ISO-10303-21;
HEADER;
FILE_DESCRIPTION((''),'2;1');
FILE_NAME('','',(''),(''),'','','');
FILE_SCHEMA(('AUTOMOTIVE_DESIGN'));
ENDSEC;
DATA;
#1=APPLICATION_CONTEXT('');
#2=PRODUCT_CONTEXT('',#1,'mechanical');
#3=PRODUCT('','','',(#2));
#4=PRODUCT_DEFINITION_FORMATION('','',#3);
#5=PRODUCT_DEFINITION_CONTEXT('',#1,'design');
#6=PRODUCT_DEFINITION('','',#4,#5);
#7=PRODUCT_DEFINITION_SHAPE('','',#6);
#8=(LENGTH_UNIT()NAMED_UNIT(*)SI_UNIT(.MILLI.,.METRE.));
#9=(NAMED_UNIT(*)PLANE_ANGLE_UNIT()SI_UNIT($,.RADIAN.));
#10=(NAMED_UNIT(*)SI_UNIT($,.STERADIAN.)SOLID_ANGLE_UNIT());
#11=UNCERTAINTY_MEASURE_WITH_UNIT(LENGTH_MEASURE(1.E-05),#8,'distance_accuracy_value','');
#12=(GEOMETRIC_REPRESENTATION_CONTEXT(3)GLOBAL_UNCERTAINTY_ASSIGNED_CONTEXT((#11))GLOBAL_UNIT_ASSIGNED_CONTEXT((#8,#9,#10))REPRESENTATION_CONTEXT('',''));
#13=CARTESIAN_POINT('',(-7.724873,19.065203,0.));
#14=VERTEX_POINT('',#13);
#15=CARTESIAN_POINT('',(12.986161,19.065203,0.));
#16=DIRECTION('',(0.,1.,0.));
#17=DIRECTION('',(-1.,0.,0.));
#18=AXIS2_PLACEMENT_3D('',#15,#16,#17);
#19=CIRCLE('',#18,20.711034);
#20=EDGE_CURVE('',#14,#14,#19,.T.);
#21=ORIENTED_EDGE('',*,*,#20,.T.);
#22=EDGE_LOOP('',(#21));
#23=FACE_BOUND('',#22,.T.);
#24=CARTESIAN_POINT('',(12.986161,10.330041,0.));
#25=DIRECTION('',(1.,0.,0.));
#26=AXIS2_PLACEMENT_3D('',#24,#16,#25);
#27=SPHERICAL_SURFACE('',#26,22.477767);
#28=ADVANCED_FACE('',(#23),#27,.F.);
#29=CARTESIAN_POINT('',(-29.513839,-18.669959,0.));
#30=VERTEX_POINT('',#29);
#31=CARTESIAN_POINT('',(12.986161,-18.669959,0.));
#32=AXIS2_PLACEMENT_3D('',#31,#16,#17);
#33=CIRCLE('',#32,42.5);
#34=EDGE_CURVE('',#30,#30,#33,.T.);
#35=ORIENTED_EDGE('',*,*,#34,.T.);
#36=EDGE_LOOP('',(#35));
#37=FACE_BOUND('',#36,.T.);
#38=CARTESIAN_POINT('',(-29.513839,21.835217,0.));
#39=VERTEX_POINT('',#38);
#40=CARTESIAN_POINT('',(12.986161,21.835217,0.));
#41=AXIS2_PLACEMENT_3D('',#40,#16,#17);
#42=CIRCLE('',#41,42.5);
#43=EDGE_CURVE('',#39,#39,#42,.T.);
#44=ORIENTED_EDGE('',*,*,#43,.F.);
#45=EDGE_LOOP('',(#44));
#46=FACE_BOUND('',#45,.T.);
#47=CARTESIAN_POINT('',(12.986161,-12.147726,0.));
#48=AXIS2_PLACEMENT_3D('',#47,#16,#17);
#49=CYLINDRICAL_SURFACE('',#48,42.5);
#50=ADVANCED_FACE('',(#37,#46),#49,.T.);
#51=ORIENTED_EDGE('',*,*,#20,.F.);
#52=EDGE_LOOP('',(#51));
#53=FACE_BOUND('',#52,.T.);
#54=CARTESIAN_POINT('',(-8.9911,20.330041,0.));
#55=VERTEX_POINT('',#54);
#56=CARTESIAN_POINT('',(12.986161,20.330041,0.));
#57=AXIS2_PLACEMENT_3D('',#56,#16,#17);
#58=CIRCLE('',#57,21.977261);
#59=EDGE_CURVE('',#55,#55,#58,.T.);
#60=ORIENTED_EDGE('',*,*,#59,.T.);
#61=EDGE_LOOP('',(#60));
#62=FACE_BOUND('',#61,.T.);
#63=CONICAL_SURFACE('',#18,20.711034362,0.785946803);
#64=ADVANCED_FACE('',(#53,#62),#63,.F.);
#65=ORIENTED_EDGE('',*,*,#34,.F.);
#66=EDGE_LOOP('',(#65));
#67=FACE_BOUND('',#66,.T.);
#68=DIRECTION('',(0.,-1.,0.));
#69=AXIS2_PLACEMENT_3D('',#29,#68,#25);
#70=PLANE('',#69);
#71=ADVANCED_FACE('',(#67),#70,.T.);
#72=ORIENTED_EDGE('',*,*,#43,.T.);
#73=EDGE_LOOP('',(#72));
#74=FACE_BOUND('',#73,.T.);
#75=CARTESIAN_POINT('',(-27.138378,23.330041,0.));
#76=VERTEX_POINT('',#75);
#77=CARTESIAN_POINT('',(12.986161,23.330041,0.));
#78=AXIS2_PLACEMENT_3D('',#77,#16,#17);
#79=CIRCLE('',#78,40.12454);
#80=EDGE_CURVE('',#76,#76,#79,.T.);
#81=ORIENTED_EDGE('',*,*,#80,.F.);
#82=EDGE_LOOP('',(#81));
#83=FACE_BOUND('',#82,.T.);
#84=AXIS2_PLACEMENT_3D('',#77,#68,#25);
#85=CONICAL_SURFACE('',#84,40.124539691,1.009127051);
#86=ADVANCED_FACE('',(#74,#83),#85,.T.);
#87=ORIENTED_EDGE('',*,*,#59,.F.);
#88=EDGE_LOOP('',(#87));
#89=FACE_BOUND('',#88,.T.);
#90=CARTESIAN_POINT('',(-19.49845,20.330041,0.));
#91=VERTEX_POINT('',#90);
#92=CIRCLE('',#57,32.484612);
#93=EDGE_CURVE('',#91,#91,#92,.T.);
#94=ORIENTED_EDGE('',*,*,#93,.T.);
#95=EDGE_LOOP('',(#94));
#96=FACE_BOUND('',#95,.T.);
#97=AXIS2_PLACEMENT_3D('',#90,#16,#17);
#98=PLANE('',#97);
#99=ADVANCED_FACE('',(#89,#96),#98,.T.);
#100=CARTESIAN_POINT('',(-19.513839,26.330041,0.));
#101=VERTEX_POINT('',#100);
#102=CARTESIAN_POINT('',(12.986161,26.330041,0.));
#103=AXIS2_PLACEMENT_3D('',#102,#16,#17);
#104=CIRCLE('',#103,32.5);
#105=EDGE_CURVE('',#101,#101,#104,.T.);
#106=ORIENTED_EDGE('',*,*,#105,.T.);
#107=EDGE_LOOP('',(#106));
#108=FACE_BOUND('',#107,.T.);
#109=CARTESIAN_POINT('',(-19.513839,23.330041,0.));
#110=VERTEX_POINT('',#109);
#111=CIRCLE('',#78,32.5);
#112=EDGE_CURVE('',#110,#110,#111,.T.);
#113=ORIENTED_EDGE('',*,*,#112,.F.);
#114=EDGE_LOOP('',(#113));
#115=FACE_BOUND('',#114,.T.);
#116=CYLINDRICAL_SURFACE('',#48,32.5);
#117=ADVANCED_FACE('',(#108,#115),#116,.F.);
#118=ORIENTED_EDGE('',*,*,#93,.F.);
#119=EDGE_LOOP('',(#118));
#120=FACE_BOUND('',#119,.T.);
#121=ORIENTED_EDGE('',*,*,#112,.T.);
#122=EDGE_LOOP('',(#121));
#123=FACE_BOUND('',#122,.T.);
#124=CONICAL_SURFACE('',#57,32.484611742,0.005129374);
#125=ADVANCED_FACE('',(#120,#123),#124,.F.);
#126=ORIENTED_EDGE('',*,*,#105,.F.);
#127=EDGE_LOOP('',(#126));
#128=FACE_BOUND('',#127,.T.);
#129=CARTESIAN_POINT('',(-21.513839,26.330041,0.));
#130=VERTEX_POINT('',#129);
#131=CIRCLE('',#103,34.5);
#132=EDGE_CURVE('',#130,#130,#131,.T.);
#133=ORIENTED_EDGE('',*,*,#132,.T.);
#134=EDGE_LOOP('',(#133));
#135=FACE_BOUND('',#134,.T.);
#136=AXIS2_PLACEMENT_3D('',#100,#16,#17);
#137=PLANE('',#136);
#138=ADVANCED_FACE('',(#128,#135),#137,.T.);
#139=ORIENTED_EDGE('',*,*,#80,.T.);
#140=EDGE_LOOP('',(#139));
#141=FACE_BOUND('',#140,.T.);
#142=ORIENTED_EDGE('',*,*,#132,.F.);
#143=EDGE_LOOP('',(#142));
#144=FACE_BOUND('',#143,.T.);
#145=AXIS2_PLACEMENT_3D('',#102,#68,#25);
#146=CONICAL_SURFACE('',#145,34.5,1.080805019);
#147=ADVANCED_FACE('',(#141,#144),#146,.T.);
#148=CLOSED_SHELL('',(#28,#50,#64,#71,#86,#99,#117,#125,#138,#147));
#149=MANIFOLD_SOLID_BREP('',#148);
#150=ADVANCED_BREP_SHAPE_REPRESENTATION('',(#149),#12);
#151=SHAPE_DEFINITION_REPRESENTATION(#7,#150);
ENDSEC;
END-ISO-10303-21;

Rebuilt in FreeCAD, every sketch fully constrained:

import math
import FreeCAD as App
import Part
import Sketcher
Q = App.Units.Quantity

doc = App.newDocument("Part")
body = doc.addObject("PartDesign::Body", "Body")

sketch1 = body.newObject("Sketcher::SketchObject", "Sketch")
sketch1.AttachmentSupport = (doc.getObject("XY_Plane"), [""])
sketch1.MapMode = "FlatFace"
sketch1.addGeometry([
    Part.LineSegment(App.Vector(-19.5, 23.3, 0), App.Vector(-19.5, 26.3, 0)),
    Part.LineSegment(App.Vector(-19.5, 26.3, 0), App.Vector(-21.5, 26.3, 0)),
    Part.LineSegment(App.Vector(-21.5, 26.3, 0), App.Vector(-27.1, 23.3, 0)),
    Part.LineSegment(App.Vector(-27.1, 23.3, 0), App.Vector(-29.5, 21.8, 0)),
    Part.LineSegment(App.Vector(-29.5, 21.8, 0), App.Vector(-29.5, -18.7, 0)),
    Part.LineSegment(App.Vector(-29.5, -18.7, 0), App.Vector(13, -18.7, 0)),
    Part.LineSegment(App.Vector(13, -18.7, 0), App.Vector(13, -12.1, 0)),
    Part.ArcOfCircle(Part.Circle(App.Vector(13, 10.3, 0), App.Vector(0, 0, 1), 22.5), math.radians(157), math.radians(270)),
    Part.LineSegment(App.Vector(-7.7, 19.1, 0), App.Vector(-9, 20.3, 0)),
    Part.LineSegment(App.Vector(-9, 20.3, 0), App.Vector(-19.5, 20.3, 0)),
    Part.LineSegment(App.Vector(-19.5, 20.3, 0), App.Vector(-19.5, 23.3, 0)),
], False)
sketch1.addGeometry(Part.LineSegment(App.Vector(13, 26.3, 0), App.Vector(13, -18.7, 0)), True)
sketch1.addConstraint([
    Sketcher.Constraint("Coincident", 0, 2, 1, 1),
    Sketcher.Constraint("Coincident", 1, 2, 2, 1),
    Sketcher.Constraint("Coincident", 2, 2, 3, 1),
    Sketcher.Constraint("Coincident", 3, 2, 4, 1),
    Sketcher.Constraint("Coincident", 4, 2, 5, 1),
    Sketcher.Constraint("Coincident", 5, 2, 6, 1),
    Sketcher.Constraint("Coincident", 6, 2, 7, 2),
    Sketcher.Constraint("Coincident", 7, 1, 8, 1),
    Sketcher.Constraint("Coincident", 8, 2, 9, 1),
    Sketcher.Constraint("Coincident", 9, 2, 10, 1),
    Sketcher.Constraint("Coincident", 10, 2, 0, 1),
    Sketcher.Constraint("Vertical", 0),
    Sketcher.Constraint("Horizontal", 1),
    Sketcher.Constraint("Vertical", 4),
    Sketcher.Constraint("Horizontal", 5),
    Sketcher.Constraint("Vertical", 6),
    Sketcher.Constraint("Horizontal", 9),
    Sketcher.Constraint("Vertical", 11),
    Sketcher.Constraint("Coincident", 11, 2, 5, 2),
    Sketcher.Constraint("Horizontal", 2, 2, 10, 2),
    Sketcher.Constraint("Horizontal", 1, 2, 11, 1),
    Sketcher.Constraint("Vertical", 7, 3, 5, 2),
    Sketcher.Constraint("DistanceX", 1, 2, 1, 1, Q("2 mm")),
    Sketcher.Constraint("DistanceY", 0, 1, 0, 2, Q("3 mm")),
    Sketcher.Constraint("DistanceY", 11, 2, 11, 1, Q("45 mm")),
    Sketcher.Constraint("DistanceX", 5, 1, 5, 2, Q("42.5 mm")),
    Sketcher.Constraint("DistanceY", 7, 3, 0, 2, Q("16 mm")),
    Sketcher.Constraint("DistanceX", 3, 2, 1, 2, Q("8 mm")),
    Sketcher.Constraint("DistanceY", 8, 2, 0, 2, Q("6 mm")),
    Sketcher.Constraint("Radius", 7, Q("22.477767 mm")),
    Sketcher.Constraint("DistanceX", 9, 2, 9, 1, Q("10.507351 mm")),
    Sketcher.Constraint("DistanceX", 8, 2, -1, 1, Q("8.9911 mm")),
    Sketcher.Constraint("DistanceY", 4, 2, 4, 1, Q("40.505177 mm")),
    Sketcher.Constraint("DistanceX", -1, 1, 7, 3, Q("12.986161 mm")),
    Sketcher.Constraint("DistanceY", -1, 1, 7, 3, Q("10.330041 mm")),
    Sketcher.Constraint("DistanceX", 2, 2, -1, 1, Q("27.138378 mm")),
    Sketcher.Constraint("Distance", 8, Q("1.789733 mm")),
])
revolution = body.newObject("PartDesign::Revolution", "Revolution")
revolution.Profile = sketch1
revolution.ReferenceAxis = (sketch1, ["Axis0"])
revolution.Angle = 360

doc.recompute()
